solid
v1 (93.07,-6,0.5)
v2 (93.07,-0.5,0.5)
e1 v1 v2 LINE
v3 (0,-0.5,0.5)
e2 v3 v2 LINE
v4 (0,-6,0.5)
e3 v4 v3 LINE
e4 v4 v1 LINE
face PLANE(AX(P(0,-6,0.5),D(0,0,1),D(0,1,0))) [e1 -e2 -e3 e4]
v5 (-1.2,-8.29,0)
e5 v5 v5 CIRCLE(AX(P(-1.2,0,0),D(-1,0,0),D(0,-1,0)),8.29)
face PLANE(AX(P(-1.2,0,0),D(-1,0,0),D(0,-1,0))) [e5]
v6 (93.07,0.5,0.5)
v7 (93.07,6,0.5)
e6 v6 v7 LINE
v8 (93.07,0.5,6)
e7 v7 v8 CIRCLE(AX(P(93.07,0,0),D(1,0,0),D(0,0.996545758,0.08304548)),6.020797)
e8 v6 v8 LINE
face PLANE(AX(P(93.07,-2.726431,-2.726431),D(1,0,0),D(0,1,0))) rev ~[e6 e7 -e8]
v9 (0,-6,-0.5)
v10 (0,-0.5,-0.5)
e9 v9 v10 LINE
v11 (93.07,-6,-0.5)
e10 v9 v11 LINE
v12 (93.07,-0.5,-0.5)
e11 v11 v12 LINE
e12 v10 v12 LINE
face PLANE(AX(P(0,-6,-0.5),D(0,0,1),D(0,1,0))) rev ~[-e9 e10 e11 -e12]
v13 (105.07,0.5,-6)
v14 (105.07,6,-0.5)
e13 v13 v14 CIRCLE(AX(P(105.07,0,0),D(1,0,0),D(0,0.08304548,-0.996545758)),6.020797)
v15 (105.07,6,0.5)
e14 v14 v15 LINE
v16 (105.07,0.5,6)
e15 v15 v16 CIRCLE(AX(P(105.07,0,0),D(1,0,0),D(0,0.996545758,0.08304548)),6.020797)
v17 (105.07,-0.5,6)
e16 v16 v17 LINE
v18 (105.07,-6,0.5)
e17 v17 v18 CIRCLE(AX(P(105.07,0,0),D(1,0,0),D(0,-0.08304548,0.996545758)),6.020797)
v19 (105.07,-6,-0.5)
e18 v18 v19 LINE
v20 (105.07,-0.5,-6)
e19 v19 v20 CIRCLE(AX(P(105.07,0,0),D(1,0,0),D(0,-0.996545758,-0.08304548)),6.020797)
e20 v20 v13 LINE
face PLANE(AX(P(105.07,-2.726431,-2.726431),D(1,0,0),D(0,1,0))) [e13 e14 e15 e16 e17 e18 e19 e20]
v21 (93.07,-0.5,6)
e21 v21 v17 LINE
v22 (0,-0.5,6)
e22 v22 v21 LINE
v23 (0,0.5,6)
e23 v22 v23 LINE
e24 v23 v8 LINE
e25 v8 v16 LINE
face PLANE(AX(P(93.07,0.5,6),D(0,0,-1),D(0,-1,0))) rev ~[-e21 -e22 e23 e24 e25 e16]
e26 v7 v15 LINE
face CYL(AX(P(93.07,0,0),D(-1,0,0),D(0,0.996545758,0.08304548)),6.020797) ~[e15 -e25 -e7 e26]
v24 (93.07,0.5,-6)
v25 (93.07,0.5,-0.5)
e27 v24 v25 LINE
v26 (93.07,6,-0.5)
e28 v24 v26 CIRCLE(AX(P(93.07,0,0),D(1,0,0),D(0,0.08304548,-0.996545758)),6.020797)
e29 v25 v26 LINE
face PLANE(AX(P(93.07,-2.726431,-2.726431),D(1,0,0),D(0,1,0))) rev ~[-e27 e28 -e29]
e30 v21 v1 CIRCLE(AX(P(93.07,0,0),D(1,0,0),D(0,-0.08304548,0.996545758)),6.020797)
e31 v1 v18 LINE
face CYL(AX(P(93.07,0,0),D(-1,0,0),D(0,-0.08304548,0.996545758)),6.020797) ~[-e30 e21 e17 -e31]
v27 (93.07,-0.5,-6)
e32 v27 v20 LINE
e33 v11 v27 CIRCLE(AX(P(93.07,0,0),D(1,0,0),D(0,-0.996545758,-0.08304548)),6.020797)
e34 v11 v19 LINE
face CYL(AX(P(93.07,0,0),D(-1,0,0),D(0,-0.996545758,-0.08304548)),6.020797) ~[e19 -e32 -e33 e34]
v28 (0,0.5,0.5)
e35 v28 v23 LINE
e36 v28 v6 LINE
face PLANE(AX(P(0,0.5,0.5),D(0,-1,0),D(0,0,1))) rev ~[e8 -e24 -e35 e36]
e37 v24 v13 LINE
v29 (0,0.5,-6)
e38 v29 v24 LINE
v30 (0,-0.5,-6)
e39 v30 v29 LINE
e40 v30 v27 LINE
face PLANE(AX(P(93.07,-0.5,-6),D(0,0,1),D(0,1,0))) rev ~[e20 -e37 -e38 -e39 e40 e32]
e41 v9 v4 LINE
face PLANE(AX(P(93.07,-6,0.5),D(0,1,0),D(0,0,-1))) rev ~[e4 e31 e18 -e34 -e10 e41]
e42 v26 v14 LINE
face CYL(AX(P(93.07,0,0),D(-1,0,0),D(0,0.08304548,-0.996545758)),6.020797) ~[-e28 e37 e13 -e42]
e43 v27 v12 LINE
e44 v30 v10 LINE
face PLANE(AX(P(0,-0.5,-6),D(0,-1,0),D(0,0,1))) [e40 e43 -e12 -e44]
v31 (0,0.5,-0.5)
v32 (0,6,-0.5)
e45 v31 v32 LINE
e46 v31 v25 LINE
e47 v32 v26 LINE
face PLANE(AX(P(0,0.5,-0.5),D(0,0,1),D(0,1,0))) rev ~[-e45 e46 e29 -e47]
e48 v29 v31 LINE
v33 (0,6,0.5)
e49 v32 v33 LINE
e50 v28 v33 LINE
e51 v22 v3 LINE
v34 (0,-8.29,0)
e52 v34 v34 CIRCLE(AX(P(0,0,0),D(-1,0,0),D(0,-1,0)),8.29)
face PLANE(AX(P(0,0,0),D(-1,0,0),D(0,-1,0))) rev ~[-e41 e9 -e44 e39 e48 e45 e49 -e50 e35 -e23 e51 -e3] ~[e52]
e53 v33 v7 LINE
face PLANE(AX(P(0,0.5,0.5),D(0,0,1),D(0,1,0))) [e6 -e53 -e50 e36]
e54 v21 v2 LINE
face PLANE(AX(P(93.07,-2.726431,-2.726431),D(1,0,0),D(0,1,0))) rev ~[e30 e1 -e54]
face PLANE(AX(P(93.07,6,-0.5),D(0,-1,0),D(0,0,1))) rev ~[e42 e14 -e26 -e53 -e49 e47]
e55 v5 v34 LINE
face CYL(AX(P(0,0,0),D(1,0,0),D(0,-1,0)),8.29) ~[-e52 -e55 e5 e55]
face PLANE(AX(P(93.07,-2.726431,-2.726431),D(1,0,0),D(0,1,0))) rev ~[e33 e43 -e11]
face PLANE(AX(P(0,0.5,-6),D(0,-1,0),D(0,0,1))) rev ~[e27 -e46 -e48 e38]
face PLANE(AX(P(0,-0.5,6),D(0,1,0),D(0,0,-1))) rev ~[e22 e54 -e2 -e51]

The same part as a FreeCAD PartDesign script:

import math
import FreeCAD as App
import Part
import Sketcher

doc = App.newDocument("Part")
body = doc.addObject("PartDesign::Body", "Body")

# Sketch on YZ plane
sketch1 = doc.addObject("Sketcher::SketchObject", "Sketch")
body.addObject(sketch1)
sketch1.AttachmentSupport = (doc.YZ_Plane, [""])
sketch1.MapMode = "FlatFace"
sketch1.addGeometry([
    Part.LineSegment(App.Vector(-0.5, 6, 0), App.Vector(-0.5, 0.5, 0)),  # 0
    Part.LineSegment(App.Vector(-0.5, 0.5, 0), App.Vector(-6, 0.5, 0)),  # 1
    Part.LineSegment(App.Vector(-6, 0.5, 0), App.Vector(-6, -0.5, 0)),  # 2
    Part.LineSegment(App.Vector(-6, -0.5, 0), App.Vector(-0.5, -0.5, 0)),  # 3
    Part.LineSegment(App.Vector(-0.5, -0.5, 0), App.Vector(-0.5, -6, 0)),  # 4
    Part.LineSegment(App.Vector(-0.5, -6, 0), App.Vector(0.5, -6, 0)),  # 5
    Part.LineSegment(App.Vector(0.5, -6, 0), App.Vector(0.5, -0.5, 0)),  # 6
    Part.LineSegment(App.Vector(0.5, -0.5, 0), App.Vector(6, -0.5, 0)),  # 7
    Part.LineSegment(App.Vector(6, -0.5, 0), App.Vector(6, 0.5, 0)),  # 8
    Part.LineSegment(App.Vector(6, 0.5, 0), App.Vector(0.5, 0.5, 0)),  # 9
    Part.LineSegment(App.Vector(0.5, 0.5, 0), App.Vector(0.5, 6, 0)),  # 10
    Part.LineSegment(App.Vector(0.5, 6, 0), App.Vector(-0.5, 6, 0)),  # 11
], False)
sketch1.addConstraint([
    Sketcher.Constraint("Coincident", 0, 2, 1, 1),
    Sketcher.Constraint("Coincident", 1, 2, 2, 1),
    Sketcher.Constraint("Coincident", 2, 2, 3, 1),
    Sketcher.Constraint("Coincident", 3, 2, 4, 1),
    Sketcher.Constraint("Coincident", 4, 2, 5, 1),
    Sketcher.Constraint("Coincident", 5, 2, 6, 1),
    Sketcher.Constraint("Coincident", 6, 2, 7, 1),
    Sketcher.Constraint("Coincident", 7, 2, 8, 1),
    Sketcher.Constraint("Coincident", 8, 2, 9, 1),
    Sketcher.Constraint("Coincident", 9, 2, 10, 1),
    Sketcher.Constraint("Coincident", 10, 2, 11, 1),
    Sketcher.Constraint("Coincident", 11, 2, 0, 1),
    Sketcher.Constraint("Vertical", 0),
    Sketcher.Constraint("Horizontal", 1),
    Sketcher.Constraint("Vertical", 2),
    Sketcher.Constraint("Horizontal", 3),
    Sketcher.Constraint("Vertical", 4),
    Sketcher.Constraint("Horizontal", 5),
    Sketcher.Constraint("Vertical", 6),
    Sketcher.Constraint("Horizontal", 7),
    Sketcher.Constraint("Vertical", 8),
    Sketcher.Constraint("Horizontal", 9),
    Sketcher.Constraint("Vertical", 10),
    Sketcher.Constraint("Horizontal", 11),
    Sketcher.Constraint("Symmetric", 0, 2, 6, 2, -1, 1),
    Sketcher.Constraint("Symmetric", 2, 2, 8, 2, -1, 1),
    Sketcher.Constraint("Symmetric", 4, 2, 10, 2, -1, 1),
    Sketcher.Constraint("Symmetric", 3, 2, 6, 2, -2),
    Sketcher.Constraint("Equal", 9, 0),
    Sketcher.Constraint("Equal", 11, 2),
    Sketcher.Constraint("DistanceX", 5, 1, 5, 2, 1.0),
    Sketcher.Constraint("DistanceX", 1, 2, 1, 1, 5.5),
])
pad1 = doc.addObject("PartDesign::Pad", "Pad")
body.addObject(pad1)
pad1.Profile = sketch1
pad1.Length = 93.07

# Sketch on YZ plane
sketch2 = doc.addObject("Sketcher::SketchObject", "Sketch001")
body.addObject(sketch2)
sketch2.AttachmentSupport = (doc.YZ_Plane, [""])
sketch2.MapMode = "FlatFace"
sketch2.AttachmentOffset = App.Placement(App.Vector(0, 0, 93.07), App.Rotation())
sketch2.addGeometry([
    Part.ArcOfCircle(Part.Circle(App.Vector(0, 0, 0), App.Vector(0, 0, 1), 6), math.radians(-175), math.radians(-95)),  # 0
    Part.LineSegment(App.Vector(-0.5, -6, 0), App.Vector(0.5, -6, 0)),  # 1
    Part.ArcOfCircle(Part.Circle(App.Vector(0, 0, 0), App.Vector(0, 0, 1), 6), math.radians(-85), math.radians(-5)),  # 2
    Part.LineSegment(App.Vector(6, -0.5, 0), App.Vector(6, 0.5, 0)),  # 3
    Part.ArcOfCircle(Part.Circle(App.Vector(0, 0, 0), App.Vector(0, 0, 1), 6), math.radians(5), math.radians(85)),  # 4
    Part.LineSegment(App.Vector(0.5, 6, 0), App.Vector(-0.5, 6, 0)),  # 5
    Part.ArcOfCircle(Part.Circle(App.Vector(0, 0, 0), App.Vector(0, 0, 1), 6), math.radians(95), math.radians(175)),  # 6
    Part.LineSegment(App.Vector(-6, 0.5, 0), App.Vector(-6, -0.5, 0)),  # 7
], False)
sketch2.addConstraint([
    Sketcher.Constraint("Coincident", 0, 2, 1, 1),
    Sketcher.Constraint("Coincident", 1, 2, 2, 1),
    Sketcher.Constraint("Coincident", 2, 2, 3, 1),
    Sketcher.Constraint("Coincident", 3, 2, 4, 1),
    Sketcher.Constraint("Coincident", 4, 2, 5, 1),
    Sketcher.Constraint("Coincident", 5, 2, 6, 1),
    Sketcher.Constraint("Coincident", 6, 2, 7, 1),
    Sketcher.Constraint("Coincident", 7, 2, 0, 1),
    Sketcher.Constraint("Horizontal", 1),
    Sketcher.Constraint("Vertical", 3),
    Sketcher.Constraint("Horizontal", 5),
    Sketcher.Constraint("Vertical", 7),
    Sketcher.Constraint("Coincident", 0, 3, -1, 1),
    Sketcher.Constraint("Coincident", 2, 3, -1, 1),
    Sketcher.Constraint("Coincident", 4, 3, -1, 1),
    Sketcher.Constraint("Coincident", 6, 3, -1, 1),
    Sketcher.Constraint("Equal", 0, 2),
    Sketcher.Constraint("Equal", 2, 4),
    Sketcher.Constraint("Equal", 4, 6),
    Sketcher.Constraint("Horizontal", 3, 2, 6, 2),
    Sketcher.Constraint("Vertical", 1, 2, 4, 2),
    Sketcher.Constraint("Equal", 5, 3),
    Sketcher.Constraint("DistanceX", 1, 1, 1, 2, 1.0),
    Sketcher.Constraint("DistanceY", 0, 2, -1, 1, 6.0),
])
pad2 = doc.addObject("PartDesign::Pad", "Pad001")
body.addObject(pad2)
pad2.Profile = sketch2
pad2.Length = 12

# Sketch on YZ plane
sketch3 = doc.addObject("Sketcher::SketchObject", "Sketch002")
body.addObject(sketch3)
sketch3.AttachmentSupport = (doc.YZ_Plane, [""])
sketch3.MapMode = "FlatFace"
sketch3.addGeometry(Part.Circle(App.Vector(0, 0, 0), App.Vector(0, 0, 1), 8), False)
sketch3.addConstraint([
    Sketcher.Constraint("Coincident", 0, 3, -1, 1),
    Sketcher.Constraint("Diameter", 0, 16.58),
])
pad3 = doc.addObject("PartDesign::Pad", "Pad002")
body.addObject(pad3)
pad3.Profile = sketch3
pad3.Length = 1
pad3.Reversed = True

# Sketch on YZ plane
sketch4 = doc.addObject("Sketcher::SketchObject", "Sketch003")
body.addObject(sketch4)
sketch4.AttachmentSupport = (doc.YZ_Plane, [""])
sketch4.MapMode = "FlatFace"
sketch4.addGeometry([
    Part.Circle(App.Vector(0, 0, 0), App.Vector(0, 0, 1), 8.3),  # 0
    Part.LineSegment(App.Vector(0.5, 0.5, 0), App.Vector(0.5, 6, 0)),  # 1
    Part.LineSegment(App.Vector(0.5, 6, 0), App.Vector(-0.5, 6, 0)),  # 2
    Part.LineSegment(App.Vector(-0.5, 6, 0), App.Vector(-0.5, 0.5, 0)),  # 3
    Part.LineSegment(App.Vector(-0.5, 0.5, 0), App.Vector(-6, 0.5, 0)),  # 4
    Part.LineSegment(App.Vector(-6, 0.5, 0), App.Vector(-6, -0.5, 0)),  # 5
    Part.LineSegment(App.Vector(-6, -0.5, 0), App.Vector(-0.5, -0.5, 0)),  # 6
    Part.LineSegment(App.Vector(-0.5, -0.5, 0), App.Vector(-0.5, -6, 0)),  # 7
    Part.LineSegment(App.Vector(-0.5, -6, 0), App.Vector(0.5, -6, 0)),  # 8
    Part.LineSegment(App.Vector(0.5, -6, 0), App.Vector(0.5, -0.5, 0)),  # 9
    Part.LineSegment(App.Vector(0.5, -0.5, 0), App.Vector(6, -0.5, 0)),  # 10
    Part.LineSegment(App.Vector(6, -0.5, 0), App.Vector(6, 0.5, 0)),  # 11
    Part.LineSegment(App.Vector(6, 0.5, 0), App.Vector(0.5, 0.5, 0)),  # 12
], False)
sketch4.addConstraint([
    Sketcher.Constraint("Coincident", 1, 2, 2, 1),
    Sketcher.Constraint("Coincident", 2, 2, 3, 1),
    Sketcher.Constraint("Coincident", 3, 2, 4, 1),
    Sketcher.Constraint("Coincident", 4, 2, 5, 1),
    Sketcher.Constraint("Coincident", 5, 2, 6, 1),
    Sketcher.Constraint("Coincident", 6, 2, 7, 1),
    Sketcher.Constraint("Coincident", 7, 2, 8, 1),
    Sketcher.Constraint("Coincident", 8, 2, 9, 1),
    Sketcher.Constraint("Coincident", 9, 2, 10, 1),
    Sketcher.Constraint("Coincident", 10, 2, 11, 1),
    Sketcher.Constraint("Coincident", 11, 2, 12, 1),
    Sketcher.Constraint("Coincident", 12, 2, 1, 1),
    Sketcher.Constraint("Vertical", 1),
    Sketcher.Constraint("Horizontal", 2),
    Sketcher.Constraint("Vertical", 3),
    Sketcher.Constraint("Horizontal", 4),
    Sketcher.Constraint("Vertical", 5),
    Sketcher.Constraint("Horizontal", 6),
    Sketcher.Constraint("Vertical", 7),
    Sketcher.Constraint("Horizontal", 8),
    Sketcher.Constraint("Vertical", 9),
    Sketcher.Constraint("Horizontal", 10),
    Sketcher.Constraint("Vertical", 11),
    Sketcher.Constraint("Horizontal", 12),
    Sketcher.Constraint("Coincident", 0, 3, -1, 1),
    Sketcher.Constraint("Symmetric", 1, 2, 7, 2, -1, 1),
    Sketcher.Constraint("Symmetric", 3, 2, 9, 2, -1, 1),
    Sketcher.Constraint("Symmetric", 5, 2, 11, 2, -1, 1),
    Sketcher.Constraint("Symmetric", 6, 2, 9, 2, -2),
    Sketcher.Constraint("Equal", 12, 1),
    Sketcher.Constraint("Equal", 8, 5),
    Sketcher.Constraint("Diameter", 0, 16.58),
    Sketcher.Constraint("DistanceX", 2, 2, 2, 1, 1.0),
    Sketcher.Constraint("DistanceX", 4, 2, 4, 1, 5.5),
])
pad4 = doc.addObject("PartDesign::Pad", "Pad003")
body.addObject(pad4)
pad4.Profile = sketch4
pad4.Length = 1.2
pad4.Reversed = True

# Sketch on YZ plane
sketch5 = doc.addObject("Sketcher::SketchObject", "Sketch004")
body.addObject(sketch5)
sketch5.AttachmentSupport = (doc.YZ_Plane, [""])
sketch5.MapMode = "FlatFace"
sketch5.addGeometry([
    Part.LineSegment(App.Vector(-0.5, 0.5, 0), App.Vector(-0.5, 6, 0)),  # 0
    Part.LineSegment(App.Vector(-0.5, 6, 0), App.Vector(0.5, 6, 0)),  # 1
    Part.LineSegment(App.Vector(0.5, 6, 0), App.Vector(0.5, 0.5, 0)),  # 2
    Part.LineSegment(App.Vector(0.5, 0.5, 0), App.Vector(6, 0.5, 0)),  # 3
    Part.LineSegment(App.Vector(6, 0.5, 0), App.Vector(6, -0.5, 0)),  # 4
    Part.LineSegment(App.Vector(6, -0.5, 0), App.Vector(0.5, -0.5, 0)),  # 5
    Part.LineSegment(App.Vector(0.5, -0.5, 0), App.Vector(0.5, -6, 0)),  # 6
    Part.LineSegment(App.Vector(0.5, -6, 0), App.Vector(-0.5, -6, 0)),  # 7
    Part.LineSegment(App.Vector(-0.5, -6, 0), App.Vector(-0.5, -0.5, 0)),  # 8
    Part.LineSegment(App.Vector(-0.5, -0.5, 0), App.Vector(-6, -0.5, 0)),  # 9
    Part.LineSegment(App.Vector(-6, -0.5, 0), App.Vector(-6, 0.5, 0)),  # 10
    Part.LineSegment(App.Vector(-6, 0.5, 0), App.Vector(-0.5, 0.5, 0)),  # 11
], False)
sketch5.addConstraint([
    Sketcher.Constraint("Coincident", 0, 2, 1, 1),
    Sketcher.Constraint("Coincident", 1, 2, 2, 1),
    Sketcher.Constraint("Coincident", 2, 2, 3, 1),
    Sketcher.Constraint("Coincident", 3, 2, 4, 1),
    Sketcher.Constraint("Coincident", 4, 2, 5, 1),
    Sketcher.Constraint("Coincident", 5, 2, 6, 1),
    Sketcher.Constraint("Coincident", 6, 2, 7, 1),
    Sketcher.Constraint("Coincident", 7, 2, 8, 1),
    Sketcher.Constraint("Coincident", 8, 2, 9, 1),
    Sketcher.Constraint("Coincident", 9, 2, 10, 1),
    Sketcher.Constraint("Coincident", 10, 2, 11, 1),
    Sketcher.Constraint("Coincident", 11, 2, 0, 1),
    Sketcher.Constraint("Vertical", 0),
    Sketcher.Constraint("Horizontal", 1),
    Sketcher.Constraint("Vertical", 2),
    Sketcher.Constraint("Horizontal", 3),
    Sketcher.Constraint("Vertical", 4),
    Sketcher.Constraint("Horizontal", 5),
    Sketcher.Constraint("Vertical", 6),
    Sketcher.Constraint("Horizontal", 7),
    Sketcher.Constraint("Vertical", 8),
    Sketcher.Constraint("Horizontal", 9),
    Sketcher.Constraint("Vertical", 10),
    Sketcher.Constraint("Horizontal", 11),
    Sketcher.Constraint("Symmetric", 0, 2, 6, 2, -1, 1),
    Sketcher.Constraint("Symmetric", 2, 2, 8, 2, -1, 1),
    Sketcher.Constraint("Symmetric", 4, 2, 10, 2, -1, 1),
    Sketcher.Constraint("Symmetric", 5, 2, 8, 2, -2),
    Sketcher.Constraint("Equal", 11, 0),
    Sketcher.Constraint("Equal", 7, 4),
    Sketcher.Constraint("DistanceX", 1, 1, 1, 2, 1.0),
    Sketcher.Constraint("DistanceX", 3, 1, 3, 2, 5.5),
])
pad5 = doc.addObject("PartDesign::Pad", "Pad004")
body.addObject(pad5)
pad5.Profile = sketch5
pad5.Length = 1.2
pad5.Reversed = True

doc.recompute()
